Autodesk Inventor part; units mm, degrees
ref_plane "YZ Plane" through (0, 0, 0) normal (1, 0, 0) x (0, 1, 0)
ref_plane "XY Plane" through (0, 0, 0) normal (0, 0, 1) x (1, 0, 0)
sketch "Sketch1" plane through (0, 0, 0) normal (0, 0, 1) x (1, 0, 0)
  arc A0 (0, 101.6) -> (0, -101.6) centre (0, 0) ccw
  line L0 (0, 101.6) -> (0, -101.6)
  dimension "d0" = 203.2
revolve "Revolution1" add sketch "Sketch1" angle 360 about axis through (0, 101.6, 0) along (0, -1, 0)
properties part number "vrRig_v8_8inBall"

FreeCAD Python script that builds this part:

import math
import FreeCAD as App
import Part
import Sketcher
Q = App.Units.Quantity

doc = App.newDocument("Part")
body = doc.addObject("PartDesign::Body", "Body")

# Sketch on XY plane
sketch1 = body.newObject("Sketcher::SketchObject", "Sketch")
sketch1.AttachmentSupport = (doc.getObject("XY_Plane"), [""])
sketch1.MapMode = "FlatFace"
sketch1.addGeometry([
    Part.LineSegment(App.Vector(0, -102, 0), App.Vector(0, 102, 0)),
    Part.ArcOfCircle(Part.Circle(App.Vector(0, 0, 0), App.Vector(0, 0, 1), 102), math.radians(90), math.radians(270)),
], False)
sketch1.addConstraint([
    Sketcher.Constraint("Coincident", 0, 1, 1, 2),
    Sketcher.Constraint("Coincident", 1, 1, 0, 2),
    Sketcher.Constraint("Vertical", 0),
    Sketcher.Constraint("Coincident", 1, 3, -1, 1),
    Sketcher.Constraint("PointOnObject", 0, 1, -2),
    Sketcher.Constraint("Radius", 1, Q("4 in")),
])
revolution = body.newObject("PartDesign::Revolution", "Revolution")
revolution.Profile = sketch1
revolution.ReferenceAxis = (sketch1, ["V_Axis"])
revolution.Angle = 360

doc.recompute()
